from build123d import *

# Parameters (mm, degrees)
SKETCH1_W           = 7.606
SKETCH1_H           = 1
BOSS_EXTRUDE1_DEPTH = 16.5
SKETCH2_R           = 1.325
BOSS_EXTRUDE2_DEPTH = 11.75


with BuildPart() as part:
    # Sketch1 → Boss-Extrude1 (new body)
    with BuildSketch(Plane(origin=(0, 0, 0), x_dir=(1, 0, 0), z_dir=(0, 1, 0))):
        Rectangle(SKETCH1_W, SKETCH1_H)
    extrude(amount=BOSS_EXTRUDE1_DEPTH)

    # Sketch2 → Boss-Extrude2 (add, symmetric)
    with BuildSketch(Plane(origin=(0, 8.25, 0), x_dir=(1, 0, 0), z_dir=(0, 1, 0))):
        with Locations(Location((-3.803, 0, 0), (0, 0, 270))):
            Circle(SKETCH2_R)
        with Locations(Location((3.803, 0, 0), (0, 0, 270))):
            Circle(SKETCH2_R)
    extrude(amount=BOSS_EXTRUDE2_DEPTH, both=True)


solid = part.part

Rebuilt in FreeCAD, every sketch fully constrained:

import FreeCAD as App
import Part
import Sketcher

V = App.Vector
Q = App.Units.Quantity

doc = App.newDocument("Part")
body = doc.addObject("PartDesign::Body", "Body")

sketch1 = body.newObject("Sketcher::SketchObject", "Sketch")
sketch1.AttachmentSupport = (doc.getObject("XZ_Plane"), [""])
sketch1.MapMode = "FlatFace"
sketch1.addGeometry(Part.LineSegment(V(-3.8, -0.5, 0), V(-3.8, 0.5, 0)), False)
sketch1.addGeometry(Part.LineSegment(V(-3.8, 0.5, 0), V(3.8, 0.5, 0)), False)
sketch1.addGeometry(Part.LineSegment(V(3.8, 0.5, 0), V(3.8, -0.5, 0)), False)
sketch1.addGeometry(Part.LineSegment(V(3.8, -0.5, 0), V(-3.8, -0.5, 0)), False)
sketch1.addConstraint(Sketcher.Constraint("Coincident", 0, 2, 1, 1))
sketch1.addConstraint(Sketcher.Constraint("Coincident", 1, 2, 2, 1))
sketch1.addConstraint(Sketcher.Constraint("Coincident", 2, 2, 3, 1))
sketch1.addConstraint(Sketcher.Constraint("Coincident", 3, 2, 0, 1))
sketch1.addConstraint(Sketcher.Constraint("Vertical", 0))
sketch1.addConstraint(Sketcher.Constraint("Horizontal", 1))
sketch1.addConstraint(Sketcher.Constraint("Vertical", 2))
sketch1.addConstraint(Sketcher.Constraint("Horizontal", 3))
sketch1.addConstraint(Sketcher.Constraint("Symmetric", 0, 2, 2, 2, -1, 1))
sketch1.addConstraint(Sketcher.Constraint("DistanceY", 0, 1, 0, 2, Q("1 mm")))
sketch1.addConstraint(Sketcher.Constraint("DistanceX", 1, 1, 1, 2, Q("7.606 mm")))
pad1 = body.newObject("PartDesign::Pad", "Pad")
pad1.Profile = sketch1
pad1.Length = 16.5
pad1.Reversed = True

sketch2 = body.newObject("Sketcher::SketchObject", "Sketch001")
sketch2.AttachmentSupport = (doc.getObject("XZ_Plane"), [""])
sketch2.MapMode = "FlatFace"
sketch2.AttachmentOffset = App.Placement(V(0, 0, -8.25), App.Rotation())
sketch2.addGeometry(Part.Circle(V(-3.8, 0, 0), V(0, 0, 1), 1.3), False)
sketch2.addGeometry(Part.Circle(V(3.8, 0, 0), V(0, 0, 1), 1.3), False)
sketch2.addConstraint(Sketcher.Constraint("Equal", 0, 1))
sketch2.addConstraint(Sketcher.Constraint("Symmetric", 0, 3, 1, 3, -1, 1))
sketch2.addConstraint(Sketcher.Constraint("PointOnObject", 0, 3, -1))
sketch2.addConstraint(Sketcher.Constraint("Diameter", 0, Q("2.65 mm")))
sketch2.addConstraint(Sketcher.Constraint("DistanceX", 0, 3, -1, 1, Q("3.803 mm")))
pad2 = body.newObject("PartDesign::Pad", "Pad001")
pad2.Profile = sketch2
pad2.Length = 23.5
pad2.Midplane = True

doc.recompute()
